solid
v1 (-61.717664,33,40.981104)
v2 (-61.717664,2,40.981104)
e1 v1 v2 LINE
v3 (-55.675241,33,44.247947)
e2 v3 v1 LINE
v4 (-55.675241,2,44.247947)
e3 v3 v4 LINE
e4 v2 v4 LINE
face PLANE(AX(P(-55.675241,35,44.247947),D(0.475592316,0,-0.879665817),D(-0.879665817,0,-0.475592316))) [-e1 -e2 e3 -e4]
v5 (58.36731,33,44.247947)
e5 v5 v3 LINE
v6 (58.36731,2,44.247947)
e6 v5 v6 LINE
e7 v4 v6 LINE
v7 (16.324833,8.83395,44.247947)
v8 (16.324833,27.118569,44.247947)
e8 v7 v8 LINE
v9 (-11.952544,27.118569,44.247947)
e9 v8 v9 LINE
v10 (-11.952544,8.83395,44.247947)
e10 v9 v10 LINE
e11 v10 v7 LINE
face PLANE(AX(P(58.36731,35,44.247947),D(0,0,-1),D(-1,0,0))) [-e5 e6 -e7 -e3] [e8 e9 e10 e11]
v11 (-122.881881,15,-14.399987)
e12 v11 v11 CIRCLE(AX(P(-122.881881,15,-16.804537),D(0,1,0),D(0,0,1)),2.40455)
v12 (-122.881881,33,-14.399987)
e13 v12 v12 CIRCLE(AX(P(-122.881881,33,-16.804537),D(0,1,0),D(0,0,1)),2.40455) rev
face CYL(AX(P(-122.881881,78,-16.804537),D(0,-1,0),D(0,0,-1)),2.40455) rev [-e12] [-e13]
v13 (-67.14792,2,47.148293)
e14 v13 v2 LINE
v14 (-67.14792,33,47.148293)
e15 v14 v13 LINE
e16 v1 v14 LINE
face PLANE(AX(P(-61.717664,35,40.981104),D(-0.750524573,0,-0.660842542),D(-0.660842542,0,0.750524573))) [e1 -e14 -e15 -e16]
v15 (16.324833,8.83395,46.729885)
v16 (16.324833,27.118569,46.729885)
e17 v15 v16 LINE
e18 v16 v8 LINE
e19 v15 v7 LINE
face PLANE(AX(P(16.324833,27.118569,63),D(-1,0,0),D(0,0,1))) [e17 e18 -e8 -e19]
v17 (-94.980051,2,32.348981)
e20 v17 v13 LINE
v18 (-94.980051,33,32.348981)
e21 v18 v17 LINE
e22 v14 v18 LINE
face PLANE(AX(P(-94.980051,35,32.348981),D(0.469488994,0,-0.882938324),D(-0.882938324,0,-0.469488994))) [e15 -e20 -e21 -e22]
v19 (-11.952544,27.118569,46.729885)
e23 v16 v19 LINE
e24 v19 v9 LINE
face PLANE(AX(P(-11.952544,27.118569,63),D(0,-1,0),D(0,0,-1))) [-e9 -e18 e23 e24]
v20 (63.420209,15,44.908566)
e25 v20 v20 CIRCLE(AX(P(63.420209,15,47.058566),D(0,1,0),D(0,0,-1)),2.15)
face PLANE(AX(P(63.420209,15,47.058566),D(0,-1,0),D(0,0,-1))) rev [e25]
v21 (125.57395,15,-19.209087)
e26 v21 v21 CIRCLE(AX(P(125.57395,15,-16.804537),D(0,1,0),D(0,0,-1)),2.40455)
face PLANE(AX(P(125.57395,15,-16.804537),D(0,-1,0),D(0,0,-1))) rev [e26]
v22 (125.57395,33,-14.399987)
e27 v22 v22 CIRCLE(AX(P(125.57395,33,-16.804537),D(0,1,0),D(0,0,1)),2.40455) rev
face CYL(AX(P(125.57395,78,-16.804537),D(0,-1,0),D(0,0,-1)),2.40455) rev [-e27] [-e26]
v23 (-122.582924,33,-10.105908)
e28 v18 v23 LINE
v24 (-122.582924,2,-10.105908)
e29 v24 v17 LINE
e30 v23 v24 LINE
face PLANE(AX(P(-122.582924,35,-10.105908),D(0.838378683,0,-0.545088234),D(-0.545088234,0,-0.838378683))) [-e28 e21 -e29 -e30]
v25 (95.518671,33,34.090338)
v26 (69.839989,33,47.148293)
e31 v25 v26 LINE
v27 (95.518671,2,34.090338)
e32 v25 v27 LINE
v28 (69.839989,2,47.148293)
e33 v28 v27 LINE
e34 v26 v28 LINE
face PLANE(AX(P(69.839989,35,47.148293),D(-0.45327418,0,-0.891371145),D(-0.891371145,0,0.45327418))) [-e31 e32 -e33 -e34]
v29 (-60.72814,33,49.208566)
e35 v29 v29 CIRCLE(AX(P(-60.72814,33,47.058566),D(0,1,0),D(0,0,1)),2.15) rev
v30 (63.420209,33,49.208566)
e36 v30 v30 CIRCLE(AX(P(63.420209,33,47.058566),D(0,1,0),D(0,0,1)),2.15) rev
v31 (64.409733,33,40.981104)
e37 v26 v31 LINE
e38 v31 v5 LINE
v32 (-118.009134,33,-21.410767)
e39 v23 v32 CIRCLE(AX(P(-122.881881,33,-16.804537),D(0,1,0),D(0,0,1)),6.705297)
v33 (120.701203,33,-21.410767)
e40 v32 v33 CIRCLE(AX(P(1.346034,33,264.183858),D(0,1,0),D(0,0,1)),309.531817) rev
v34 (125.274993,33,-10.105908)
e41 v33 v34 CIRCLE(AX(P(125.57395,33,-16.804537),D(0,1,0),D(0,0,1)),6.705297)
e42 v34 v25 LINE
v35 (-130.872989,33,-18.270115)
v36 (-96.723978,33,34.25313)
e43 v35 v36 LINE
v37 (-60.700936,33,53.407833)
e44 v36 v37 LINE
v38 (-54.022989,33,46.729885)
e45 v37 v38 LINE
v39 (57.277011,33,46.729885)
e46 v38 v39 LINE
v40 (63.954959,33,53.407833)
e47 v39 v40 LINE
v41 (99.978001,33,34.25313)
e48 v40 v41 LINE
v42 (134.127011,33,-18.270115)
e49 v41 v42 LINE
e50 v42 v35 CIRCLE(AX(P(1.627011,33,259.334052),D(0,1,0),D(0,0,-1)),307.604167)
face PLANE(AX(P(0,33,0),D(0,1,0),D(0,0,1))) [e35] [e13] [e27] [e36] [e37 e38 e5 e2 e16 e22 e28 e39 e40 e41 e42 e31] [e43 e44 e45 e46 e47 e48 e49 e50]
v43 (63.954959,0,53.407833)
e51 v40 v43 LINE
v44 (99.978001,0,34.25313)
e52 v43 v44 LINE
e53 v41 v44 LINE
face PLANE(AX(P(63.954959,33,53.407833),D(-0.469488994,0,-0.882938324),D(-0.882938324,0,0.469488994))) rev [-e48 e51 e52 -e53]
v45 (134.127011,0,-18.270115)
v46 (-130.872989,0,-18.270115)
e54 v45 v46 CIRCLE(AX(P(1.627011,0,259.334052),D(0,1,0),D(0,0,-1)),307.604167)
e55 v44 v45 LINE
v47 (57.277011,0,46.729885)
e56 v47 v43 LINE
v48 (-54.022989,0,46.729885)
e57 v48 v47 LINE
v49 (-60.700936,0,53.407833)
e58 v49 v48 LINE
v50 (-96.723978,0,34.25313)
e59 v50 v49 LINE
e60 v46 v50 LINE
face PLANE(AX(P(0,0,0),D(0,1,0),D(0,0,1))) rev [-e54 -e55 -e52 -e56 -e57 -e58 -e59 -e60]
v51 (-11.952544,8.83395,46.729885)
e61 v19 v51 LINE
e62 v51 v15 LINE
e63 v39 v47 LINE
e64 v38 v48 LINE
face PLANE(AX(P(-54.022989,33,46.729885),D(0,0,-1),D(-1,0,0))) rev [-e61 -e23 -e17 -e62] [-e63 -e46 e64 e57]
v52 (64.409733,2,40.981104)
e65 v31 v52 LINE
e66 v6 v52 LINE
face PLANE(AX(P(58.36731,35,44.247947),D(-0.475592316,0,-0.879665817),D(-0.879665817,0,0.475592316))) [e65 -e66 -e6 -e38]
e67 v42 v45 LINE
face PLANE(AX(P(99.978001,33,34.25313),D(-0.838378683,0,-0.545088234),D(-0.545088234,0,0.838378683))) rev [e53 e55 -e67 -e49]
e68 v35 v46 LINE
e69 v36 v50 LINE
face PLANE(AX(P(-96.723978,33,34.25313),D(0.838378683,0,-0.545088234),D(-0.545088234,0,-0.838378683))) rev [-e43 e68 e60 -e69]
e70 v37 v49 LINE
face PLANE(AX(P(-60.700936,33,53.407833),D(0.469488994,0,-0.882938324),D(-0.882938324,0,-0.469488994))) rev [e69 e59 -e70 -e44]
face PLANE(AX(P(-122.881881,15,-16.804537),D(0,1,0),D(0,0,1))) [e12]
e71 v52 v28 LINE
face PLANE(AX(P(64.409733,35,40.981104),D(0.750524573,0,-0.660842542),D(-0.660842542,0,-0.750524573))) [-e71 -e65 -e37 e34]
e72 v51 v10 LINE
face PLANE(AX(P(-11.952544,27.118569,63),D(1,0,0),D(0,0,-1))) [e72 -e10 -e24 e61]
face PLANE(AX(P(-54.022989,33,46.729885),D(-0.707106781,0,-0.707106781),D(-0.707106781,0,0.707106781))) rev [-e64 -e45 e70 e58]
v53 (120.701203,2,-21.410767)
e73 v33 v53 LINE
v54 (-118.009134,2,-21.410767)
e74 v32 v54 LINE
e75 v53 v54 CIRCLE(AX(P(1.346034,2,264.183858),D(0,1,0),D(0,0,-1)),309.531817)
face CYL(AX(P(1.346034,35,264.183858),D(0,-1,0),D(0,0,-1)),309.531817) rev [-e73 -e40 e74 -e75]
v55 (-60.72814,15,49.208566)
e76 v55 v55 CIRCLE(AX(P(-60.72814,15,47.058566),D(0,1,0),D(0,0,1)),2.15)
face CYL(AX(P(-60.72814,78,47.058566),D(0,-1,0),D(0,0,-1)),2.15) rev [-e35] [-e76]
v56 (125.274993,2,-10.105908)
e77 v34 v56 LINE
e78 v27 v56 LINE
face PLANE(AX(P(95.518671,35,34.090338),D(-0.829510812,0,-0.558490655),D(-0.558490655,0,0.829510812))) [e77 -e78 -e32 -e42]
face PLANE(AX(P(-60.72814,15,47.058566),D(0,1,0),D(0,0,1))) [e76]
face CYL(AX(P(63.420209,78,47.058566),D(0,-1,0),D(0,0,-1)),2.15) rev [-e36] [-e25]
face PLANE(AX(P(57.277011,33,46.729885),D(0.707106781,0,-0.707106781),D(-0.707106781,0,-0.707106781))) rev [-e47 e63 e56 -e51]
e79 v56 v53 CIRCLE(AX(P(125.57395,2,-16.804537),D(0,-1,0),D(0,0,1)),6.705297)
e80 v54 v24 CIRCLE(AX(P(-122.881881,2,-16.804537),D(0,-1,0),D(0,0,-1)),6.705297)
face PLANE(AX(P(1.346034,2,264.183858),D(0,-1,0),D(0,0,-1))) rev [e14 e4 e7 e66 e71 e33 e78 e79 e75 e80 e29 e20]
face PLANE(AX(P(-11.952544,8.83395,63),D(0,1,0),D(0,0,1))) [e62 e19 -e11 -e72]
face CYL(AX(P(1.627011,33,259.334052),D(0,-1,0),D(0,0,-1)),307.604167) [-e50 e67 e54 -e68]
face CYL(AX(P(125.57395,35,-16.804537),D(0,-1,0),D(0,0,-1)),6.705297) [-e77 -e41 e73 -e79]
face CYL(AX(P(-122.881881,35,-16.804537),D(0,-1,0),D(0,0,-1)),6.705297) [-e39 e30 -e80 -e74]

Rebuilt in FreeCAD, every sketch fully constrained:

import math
import FreeCAD as App
import Part
import Sketcher
from FreeCAD import Vector
Q = App.Units.Quantity

doc = App.newDocument("Part")
params = doc.addObject("Spreadsheet::Sheet", "Params")
for row, (alias, value) in enumerate([
    ("sketch1_height", "79 mm"),
    ("sketch1_width", "95.3 mm"),
    ("pad1_length", "33 mm"),
    ("pocket1_length", "51 mm"),
    ("sketch3_width", "19.8 mm"),
    ("sketch3_height", "11.7 mm"),
    ("pocket2_length", "51 mm"),
    ("sketch4_width", "111.3 mm"),
    ("pad2_length", "3 mm"),
    ("sketch5_height", "75 mm"),
    ("sketch5_width", "91.3 mm"),
    ("pocket3_length", "33 mm"),
    ("sketch6_width", "111.3 mm"),
    ("pad3_length", "33 mm"),
    ("pocket4_length", "33 mm"),
    ("pocket5_length", "63 mm"),
    ("sketch9_diameter", "4.3 mm"),
    ("pocket6_length", "63 mm"),
], start=1):
    params.set(f"A{row}", alias)
    params.set(f"B{row}", "=" + value)
    params.setAlias(f"B{row}", alias)

body = doc.addObject("PartDesign::Body", "Body")

# Sketch on XZ plane
sketch1 = doc.addObject("Sketcher::SketchObject", "Sketch")
body.addObject(sketch1)
sketch1.AttachmentSupport = (doc.XZ_Plane, [""])
sketch1.MapMode = "FlatFace"
sketch1.addGeometry([
    Part.LineSegment(Vector(-46, -40, 0), Vector(-46, 39, 0)),
    Part.LineSegment(Vector(-46, 39, 0), Vector(49, 39, 0)),
    Part.LineSegment(Vector(49, 39, 0), Vector(49, -40, 0)),
    Part.LineSegment(Vector(49, -40, 0), Vector(-46, -40, 0)),
], False)
sketch1.addConstraint([
    Sketcher.Constraint("Coincident", 0, 2, 1, 1),
    Sketcher.Constraint("Coincident", 1, 2, 2, 1),
    Sketcher.Constraint("Coincident", 2, 2, 3, 1),
    Sketcher.Constraint("Coincident", 3, 2, 0, 1),
    Sketcher.Constraint("Vertical", 0),
    Sketcher.Constraint("Horizontal", 1),
    Sketcher.Constraint("Vertical", 2),
    Sketcher.Constraint("Horizontal", 3),
    Sketcher.Constraint("DistanceY", 0, 1, 0, 2, Q("79 mm")),
    Sketcher.Constraint("DistanceX", 1, 1, 1, 2, Q("95.3 mm")),
    Sketcher.Constraint("DistanceX", 0, 2, -1, 1, Q("46.022989 mm")),
    Sketcher.Constraint("DistanceY", -1, 1, 0, 2, Q("38.729885 mm")),
])
sketch1.setExpression("Constraints[8]", "Params.sketch1_height")
sketch1.setExpression("Constraints[9]", "Params.sketch1_width")
pad1 = doc.addObject("PartDesign::Pad", "Pad")
body.addObject(pad1)
pad1.Profile = sketch1
pad1.setExpression("Length", "Params.pad1_length")
pad1.Reversed = True

# Sketch on YZ plane
sketch2 = doc.addObject("Sketcher::SketchObject", "Sketch001")
body.addObject(sketch2)
sketch2.AttachmentSupport = (doc.YZ_Plane, [""])
sketch2.MapMode = "FlatFace"
sketch2.addGeometry([
    Part.LineSegment(Vector(22, -13, 0), Vector(11, -13, 0)),
    Part.LineSegment(Vector(11, -13, 0), Vector(11, -29, 0)),
    Part.LineSegment(Vector(11, -29, 0), Vector(22, -29, 0)),
    Part.LineSegment(Vector(22, -29, 0), Vector(22, -13, 0)),
], False)
sketch2.addConstraint([
    Sketcher.Constraint("Coincident", 0, 2, 1, 1),
    Sketcher.Constraint("Coincident", 1, 2, 2, 1),
    Sketcher.Constraint("Coincident", 2, 2, 3, 1),
    Sketcher.Constraint("Coincident", 3, 2, 0, 1),
    Sketcher.Constraint("Horizontal", 0),
    Sketcher.Constraint("Vertical", 1),
    Sketcher.Constraint("Horizontal", 2),
    Sketcher.Constraint("Vertical", 3),
    Sketcher.Constraint("DistanceY", 1, 2, 1, 1, Q("16.412638 mm")),
    Sketcher.Constraint("DistanceX", 0, 2, 0, 1, Q("11.424484 mm")),
    Sketcher.Constraint("DistanceY", 0, 2, -1, 1, Q("12.838231 mm")),
    Sketcher.Constraint("DistanceX", -1, 1, 0, 2, Q("10.868212 mm")),
])
pocket1 = doc.addObject("PartDesign::Pocket", "Pocket")
body.addObject(pocket1)
pocket1.Profile = sketch2
pocket1.setExpression("Length", "Params.pocket1_length")
pocket1.Reversed = True

# Sketch on XY plane
sketch3 = doc.addObject("Sketcher::SketchObject", "Sketch002")
body.addObject(sketch3)
sketch3.AttachmentSupport = (doc.XY_Plane, [""])
sketch3.MapMode = "FlatFace"
sketch3.addGeometry([
    Part.LineSegment(Vector(-39, 23, 0), Vector(-39, 11, 0)),
    Part.LineSegment(Vector(-39, 11, 0), Vector(-19, 11, 0)),
    Part.LineSegment(Vector(-19, 11, 0), Vector(-19, 23, 0)),
    Part.LineSegment(Vector(-19, 23, 0), Vector(-39, 23, 0)),
], False)
sketch3.addConstraint([
    Sketcher.Constraint("Coincident", 0, 2, 1, 1),
    Sketcher.Constraint("Coincident", 1, 2, 2, 1),
    Sketcher.Constraint("Coincident", 2, 2, 3, 1),
    Sketcher.Constraint("Coincident", 3, 2, 0, 1),
    Sketcher.Constraint("Vertical", 0),
    Sketcher.Constraint("Horizontal", 1),
    Sketcher.Constraint("Vertical", 2),
    Sketcher.Constraint("Horizontal", 3),
    Sketcher.Constraint("DistanceX", 1, 1, 1, 2, Q("19.8 mm")),
    Sketcher.Constraint("DistanceY", 0, 2, 0, 1, Q("11.7 mm")),
    Sketcher.Constraint("DistanceX", 0, 2, -1, 1, Q("38.5534 mm")),
    Sketcher.Constraint("DistanceY", -1, 1, 0, 2, Q("10.882189 mm")),
])
sketch3.setExpression("Constraints[8]", "Params.sketch3_width")
sketch3.setExpression("Constraints[9]", "Params.sketch3_height")
pocket2 = doc.addObject("PartDesign::Pocket", "Pocket001")
body.addObject(pocket2)
pocket2.Profile = sketch3
pocket2.setExpression("Length", "Params.pocket2_length")
pocket2.Reversed = True

# Sketch on XZ plane
sketch4 = doc.addObject("Sketcher::SketchObject", "Sketch003")
body.addObject(sketch4)
sketch4.AttachmentSupport = (doc.XZ_Plane, [""])
sketch4.MapMode = "FlatFace"
sketch4.AttachmentOffset = App.Placement(Vector(0, 0, -30), App.Rotation())
sketch4.addGeometry([
    Part.LineSegment(Vector(-54, 47, 0), Vector(57, 47, 0)),
    Part.LineSegment(Vector(57, 47, 0), Vector(57, -43, 0)),
    Part.ArcOfCircle(Part.Circle(Vector(2, 259, 0), Vector(0, 0, 1), 308), math.radians(-100), math.radians(-80)),
    Part.LineSegment(Vector(-54, -43, 0), Vector(-54, 47, 0)),
], False)
sketch4.addConstraint([
    Sketcher.Constraint("Coincident", 0, 2, 1, 1),
    Sketcher.Constraint("Coincident", 1, 2, 2, 2),
    Sketcher.Constraint("Coincident", 2, 1, 3, 1),
    Sketcher.Constraint("Coincident", 3, 2, 0, 1),
    Sketcher.Constraint("Horizontal", 0),
    Sketcher.Constraint("Vertical", 1),
    Sketcher.Constraint("Vertical", 3),
    Sketcher.Constraint("Horizontal", 1, 2, 2, 1),
    Sketcher.Constraint("DistanceX", 0, 1, 0, 2, Q("111.3 mm")),
    Sketcher.Constraint("Radius", 2, Q("307.604167 mm")),
    Sketcher.Constraint("DistanceY", 1, 2, 1, 1, Q("89.924181 mm")),
    Sketcher.Constraint("DistanceX", -1, 1, 2, 3, Q("1.627011 mm")),
    Sketcher.Constraint("DistanceY", -1, 1, 2, 3, Q("259.334052 mm")),
])
sketch4.setExpression("Constraints[8]", "Params.sketch4_width")
pad2 = doc.addObject("PartDesign::Pad", "Pad001")
body.addObject(pad2)
pad2.Profile = sketch4
pad2.setExpression("Length", "Params.pad2_length")
pad2.Reversed = True

# Sketch on XZ plane
sketch5 = doc.addObject("Sketcher::SketchObject", "Sketch004")
body.addObject(sketch5)
sketch5.AttachmentSupport = (doc.XZ_Plane, [""])
sketch5.MapMode = "FlatFace"
sketch5.AttachmentOffset = App.Placement(Vector(0, 0, -2), App.Rotation())
sketch5.addGeometry([
    Part.LineSegment(Vector(-44, -38, 0), Vector(-44, 37, 0)),
    Part.LineSegment(Vector(-44, 37, 0), Vector(47, 37, 0)),
    Part.LineSegment(Vector(47, 37, 0), Vector(47, -38, 0)),
    Part.LineSegment(Vector(47, -38, 0), Vector(-44, -38, 0)),
], False)
sketch5.addConstraint([
    Sketcher.Constraint("Coincident", 0, 2, 1, 1),
    Sketcher.Constraint("Coincident", 1, 2, 2, 1),
    Sketcher.Constraint("Coincident", 2, 2, 3, 1),
    Sketcher.Constraint("Coincident", 3, 2, 0, 1),
    Sketcher.Constraint("Vertical", 0),
    Sketcher.Constraint("Horizontal", 1),
    Sketcher.Constraint("Vertical", 2),
    Sketcher.Constraint("Horizontal", 3),
    Sketcher.Constraint("DistanceY", 0, 1, 0, 2, Q("75 mm")),
    Sketcher.Constraint("DistanceX", 1, 1, 1, 2, Q("91.3 mm")),
    Sketcher.Constraint("DistanceX", 0, 2, -1, 1, Q("44.022989 mm")),
    Sketcher.Constraint("DistanceY", -1, 1, 0, 2, Q("36.729885 mm")),
])
sketch5.setExpression("Constraints[8]", "Params.sketch5_height")
sketch5.setExpression("Constraints[9]", "Params.sketch5_width")
pocket3 = doc.addObject("PartDesign::Pocket", "Pocket002")
body.addObject(pocket3)
pocket3.Profile = sketch5
pocket3.setExpression("Length", "Params.pocket3_length")

# Sketch on XZ plane
sketch6 = doc.addObject("Sketcher::SketchObject", "Sketch005")
body.addObject(sketch6)
sketch6.AttachmentSupport = (doc.XZ_Plane, [""])
sketch6.MapMode = "FlatFace"
sketch6.addGeometry([
    Part.LineSegment(Vector(-61, 53, 0), Vector(-54, 47, 0)),  # 0
    Part.LineSegment(Vector(-54, 47, 0), Vector(57, 47, 0)),  # 1
    Part.LineSegment(Vector(57, 47, 0), Vector(64, 53, 0)),  # 2
    Part.LineSegment(Vector(64, 53, 0), Vector(100, 34, 0)),  # 3
    Part.LineSegment(Vector(100, 34, 0), Vector(134, -18, 0)),  # 4
    Part.ArcOfCircle(Part.Circle(Vector(2, 259, 0), Vector(0, 0, 1), 308), math.radians(-116), math.radians(-64)),  # 5
    Part.LineSegment(Vector(-131, -18, 0), Vector(-97, 34, 0)),  # 6
    Part.LineSegment(Vector(-97, 34, 0), Vector(-61, 53, 0)),  # 7
], False)
sketch6.addConstraint([
    Sketcher.Constraint("Coincident", 0, 2, 1, 1),
    Sketcher.Constraint("Coincident", 1, 2, 2, 1),
    Sketcher.Constraint("Coincident", 2, 2, 3, 1),
    Sketcher.Constraint("Coincident", 3, 2, 4, 1),
    Sketcher.Constraint("Coincident", 4, 2, 5, 2),
    Sketcher.Constraint("Coincident", 5, 1, 6, 1),
    Sketcher.Constraint("Coincident", 6, 2, 7, 1),
    Sketcher.Constraint("Coincident", 7, 2, 0, 1),
    Sketcher.Constraint("Horizontal", 1),
    Sketcher.Constraint("Perpendicular", 0, 2),
    Sketcher.Constraint("Horizontal", 4, 2, 5, 1),
    Sketcher.Constraint("Horizontal", 3, 2, 6, 2),
    Sketcher.Constraint("Horizontal", 2, 2, 7, 2),
    Sketcher.Constraint("Equal", 0, 2),
    Sketcher.Constraint("Equal", 4, 6),
    Sketcher.Constraint("Equal", 3, 7),
    Sketcher.Constraint("DistanceX", 1, 1, 1, 2, Q("111.3 mm")),
    Sketcher.Constraint("DistanceY", 4, 2, 1, 2, Q("65 mm")),
    Sketcher.Constraint("DistanceX", 5, 1, 4, 2, Q("265 mm")),
    Sketcher.Constraint("DistanceX", -1, 1, 3, 2, Q("99.978001 mm")),
    Sketcher.Constraint("Radius", 5, Q("307.604167 mm")),
    Sketcher.Constraint("DistanceX", -1, 1, 5, 3, Q("1.627011 mm")),
    Sketcher.Constraint("DistanceY", -1, 1, 5, 3, Q("259.334052 mm")),
    Sketcher.Constraint("DistanceX", -1, 1, 2, 2, Q("63.954959 mm")),
    Sketcher.Constraint("DistanceY", -1, 1, 3, 2, Q("34.25313 mm")),
])
sketch6.setExpression("Constraints[16]", "Params.sketch6_width")
pad3 = doc.addObject("PartDesign::Pad", "Pad002")
body.addObject(pad3)
pad3.Profile = sketch6
pad3.setExpression("Length", "Params.pad3_length")
pad3.Reversed = True

# Sketch on XZ plane
sketch7 = doc.addObject("Sketcher::SketchObject", "Sketch006")
body.addObject(sketch7)
sketch7.AttachmentSupport = (doc.XZ_Plane, [""])
sketch7.MapMode = "FlatFace"
sketch7.AttachmentOffset = App.Placement(Vector(0, 0, -2), App.Rotation())
sketch7.addGeometry([
    Part.LineSegment(Vector(-62, 41, 0), Vector(-56, 44, 0)),  # 0
    Part.LineSegment(Vector(-56, 44, 0), Vector(58, 44, 0)),  # 1
    Part.LineSegment(Vector(58, 44, 0), Vector(64, 41, 0)),  # 2
    Part.LineSegment(Vector(64, 41, 0), Vector(70, 47, 0)),  # 3
    Part.LineSegment(Vector(70, 47, 0), Vector(96, 34, 0)),  # 4
    Part.LineSegment(Vector(96, 34, 0), Vector(125, -10, 0)),  # 5
    Part.ArcOfCircle(Part.Circle(Vector(126, -17, 0), Vector(0, 0, 1), 7), math.radians(93), math.radians(223)),  # 6
    Part.ArcOfCircle(Part.Circle(Vector(1, 264, 0), Vector(0, 0, 1), 310), math.radians(-113), math.radians(-67)),  # 7
    Part.ArcOfCircle(Part.Circle(Vector(-123, -17, 0), Vector(0, 0, 1), 7), math.radians(-43), math.radians(87)),  # 8
    Part.LineSegment(Vector(-123, -10, 0), Vector(-95, 32, 0)),  # 9
    Part.LineSegment(Vector(-95, 32, 0), Vector(-67, 47, 0)),  # 10
    Part.LineSegment(Vector(-67, 47, 0), Vector(-62, 41, 0)),  # 11
], False)
sketch7.addConstraint([
    Sketcher.Constraint("Coincident", 0, 2, 1, 1),
    Sketcher.Constraint("Coincident", 1, 2, 2, 1),
    Sketcher.Constraint("Coincident", 2, 2, 3, 1),
    Sketcher.Constraint("Coincident", 3, 2, 4, 1),
    Sketcher.Constraint("Coincident", 4, 2, 5, 1),
    Sketcher.Constraint("Coincident", 5, 2, 6, 1),
    Sketcher.Constraint("Coincident", 6, 2, 7, 2),
    Sketcher.Constraint("Coincident", 7, 1, 8, 1),
    Sketcher.Constraint("Coincident", 8, 2, 9, 1),
    Sketcher.Constraint("Coincident", 9, 2, 10, 1),
    Sketcher.Constraint("Coincident", 10, 2, 11, 1),
    Sketcher.Constraint("Coincident", 11, 2, 0, 1),
    Sketcher.Constraint("Horizontal", 1),
    Sketcher.Constraint("Equal", 6, 8),
    Sketcher.Constraint("Horizontal", 6, 3, 8, 3),
    Sketcher.Constraint("Horizontal", 6, 2, 7, 1),
    Sketcher.Constraint("Horizontal", 5, 2, 8, 2),
    Sketcher.Constraint("Horizontal", 3, 2, 10, 2),
    Sketcher.Constraint("Horizontal", 2, 2, 11, 2),
    Sketcher.Constraint("Equal", 0, 2),
    Sketcher.Constraint("Equal", 3, 11),
    Sketcher.Constraint("Distance", 0, Q("6.868998 mm")),
    Sketcher.Constraint("Radius", 6, Q("6.705297 mm")),
    Sketcher.Constraint("Radius", 7, Q("309.531817 mm")),
    Sketcher.Constraint("DistanceX", 1, 1, 1, 2, Q("114.042551 mm")),
    Sketcher.Constraint("DistanceX", 7, 3, 2, 2, Q("63.063699 mm")),
    Sketcher.Constraint("DistanceY", 5, 2, 3, 2, Q("57.2542 mm")),
    Sketcher.Constraint("Distance", 3, Q("8.217171 mm")),
    Sketcher.Constraint("Distance", 4, Q("28.80807 mm")),
    Sketcher.Constraint("Distance", 5, Q("53.279891 mm")),
    Sketcher.Constraint("Distance", 10, Q("31.522168 mm")),
    Sketcher.Constraint("DistanceX", -1, 1, 6, 3, Q("125.57395 mm")),
    Sketcher.Constraint("DistanceX", 8, 3, -1, 1, Q("122.881881 mm")),
    Sketcher.Constraint("DistanceX", 0, 2, -1, 1, Q("55.675241 mm")),
    Sketcher.Constraint("DistanceX", -1, 1, 3, 2, Q("69.839989 mm")),
    Sketcher.Constraint("DistanceX", -1, 1, 4, 2, Q("95.518671 mm")),
    Sketcher.Constraint("DistanceY", -1, 1, 4, 2, Q("34.090338 mm")),
    Sketcher.Constraint("DistanceX", 9, 2, -1, 1, Q("94.980051 mm")),
    Sketcher.Constraint("DistanceY", 0, 2, 7, 3, Q("219.935911 mm")),
])
pocket4 = doc.addObject("PartDesign::Pocket", "Pocket003")
body.addObject(pocket4)
pocket4.Profile = sketch7
pocket4.setExpression("Length", "Params.pocket4_length")

# Sketch on XY plane
sketch8 = doc.addObject("Sketcher::SketchObject", "Sketch007")
body.addObject(sketch8)
sketch8.AttachmentSupport = (doc.XY_Plane, [""])
sketch8.MapMode = "FlatFace"
sketch8.addGeometry([
    Part.LineSegment(Vector(-12, 27, 0), Vector(-12, 9, 0)),
    Part.LineSegment(Vector(-12, 9, 0), Vector(16, 9, 0)),
    Part.LineSegment(Vector(16, 9, 0), Vector(16, 27, 0)),
    Part.LineSegment(Vector(16, 27, 0), Vector(-12, 27, 0)),
], False)
sketch8.addConstraint([
    Sketcher.Constraint("Coincident", 0, 2, 1, 1),
    Sketcher.Constraint("Coincident", 1, 2, 2, 1),
    Sketcher.Constraint("Coincident", 2, 2, 3, 1),
    Sketcher.Constraint("Coincident", 3, 2, 0, 1),
    Sketcher.Constraint("Vertical", 0),
    Sketcher.Constraint("Horizontal", 1),
    Sketcher.Constraint("Vertical", 2),
    Sketcher.Constraint("Horizontal", 3),
    Sketcher.Constraint("DistanceY", 0, 2, 0, 1, Q("18.284619 mm")),
    Sketcher.Constraint("DistanceX", 1, 1, 1, 2, Q("28.277377 mm")),
    Sketcher.Constraint("DistanceY", -1, 1, 0, 2, Q("8.83395 mm")),
    Sketcher.Constraint("DistanceX", 0, 2, -1, 1, Q("11.952544 mm")),
])
pocket5 = doc.addObject("PartDesign::Pocket", "Pocket004")
body.addObject(pocket5)
pocket5.Profile = sketch8
pocket5.setExpression("Length", "Params.pocket5_length")
pocket5.Reversed = True

# Sketch on XZ plane
sketch9 = doc.addObject("Sketcher::SketchObject", "Sketch008")
body.addObject(sketch9)
sketch9.AttachmentSupport = (doc.XZ_Plane, [""])
sketch9.MapMode = "FlatFace"
sketch9.AttachmentOffset = App.Placement(Vector(0, 0, -15), App.Rotation())
sketch9.addGeometry([
    Part.Circle(Vector(-122.9, -16.8, 0), Vector(0, 0, 1), 2.4),
    Part.Circle(Vector(-60.7, 47.1, 0), Vector(0, 0, 1), 2.1),
    Part.Circle(Vector(63.4, 47.1, 0), Vector(0, 0, 1), 2.1),
    Part.Circle(Vector(125.6, -16.8, 0), Vector(0, 0, 1), 2.4),
], False)
sketch9.addConstraint([
    Sketcher.Constraint("Equal", 1, 2),
    Sketcher.Constraint("Equal", 0, 3),
    Sketcher.Constraint("Horizontal", 1, 3, 2, 3),
    Sketcher.Constraint("Horizontal", 0, 3, 3, 3),
    Sketcher.Constraint("Diameter", 1, Q("4.3 mm")),
    Sketcher.Constraint("Diameter", 0, Q("4.8091 mm")),
    Sketcher.Constraint("DistanceX", 0, 3, -1, 1, Q("122.881881 mm")),
    Sketcher.Constraint("DistanceX", 1, 3, -1, 1, Q("60.72814 mm")),
    Sketcher.Constraint("DistanceX", -1, 1, 2, 3, Q("63.420209 mm")),
    Sketcher.Constraint("DistanceX", -1, 1, 3, 3, Q("125.57395 mm")),
    Sketcher.Constraint("DistanceY", 0, 3, -1, 1, Q("16.804537 mm")),
    Sketcher.Constraint("DistanceY", -1, 1, 1, 3, Q("47.058566 mm")),
])
sketch9.setExpression("Constraints[4]", "Params.sketch9_diameter")
pocket6 = doc.addObject("PartDesign::Pocket", "Pocket005")
body.addObject(pocket6)
pocket6.Profile = sketch9
pocket6.setExpression("Length", "Params.pocket6_length")

doc.recompute()
